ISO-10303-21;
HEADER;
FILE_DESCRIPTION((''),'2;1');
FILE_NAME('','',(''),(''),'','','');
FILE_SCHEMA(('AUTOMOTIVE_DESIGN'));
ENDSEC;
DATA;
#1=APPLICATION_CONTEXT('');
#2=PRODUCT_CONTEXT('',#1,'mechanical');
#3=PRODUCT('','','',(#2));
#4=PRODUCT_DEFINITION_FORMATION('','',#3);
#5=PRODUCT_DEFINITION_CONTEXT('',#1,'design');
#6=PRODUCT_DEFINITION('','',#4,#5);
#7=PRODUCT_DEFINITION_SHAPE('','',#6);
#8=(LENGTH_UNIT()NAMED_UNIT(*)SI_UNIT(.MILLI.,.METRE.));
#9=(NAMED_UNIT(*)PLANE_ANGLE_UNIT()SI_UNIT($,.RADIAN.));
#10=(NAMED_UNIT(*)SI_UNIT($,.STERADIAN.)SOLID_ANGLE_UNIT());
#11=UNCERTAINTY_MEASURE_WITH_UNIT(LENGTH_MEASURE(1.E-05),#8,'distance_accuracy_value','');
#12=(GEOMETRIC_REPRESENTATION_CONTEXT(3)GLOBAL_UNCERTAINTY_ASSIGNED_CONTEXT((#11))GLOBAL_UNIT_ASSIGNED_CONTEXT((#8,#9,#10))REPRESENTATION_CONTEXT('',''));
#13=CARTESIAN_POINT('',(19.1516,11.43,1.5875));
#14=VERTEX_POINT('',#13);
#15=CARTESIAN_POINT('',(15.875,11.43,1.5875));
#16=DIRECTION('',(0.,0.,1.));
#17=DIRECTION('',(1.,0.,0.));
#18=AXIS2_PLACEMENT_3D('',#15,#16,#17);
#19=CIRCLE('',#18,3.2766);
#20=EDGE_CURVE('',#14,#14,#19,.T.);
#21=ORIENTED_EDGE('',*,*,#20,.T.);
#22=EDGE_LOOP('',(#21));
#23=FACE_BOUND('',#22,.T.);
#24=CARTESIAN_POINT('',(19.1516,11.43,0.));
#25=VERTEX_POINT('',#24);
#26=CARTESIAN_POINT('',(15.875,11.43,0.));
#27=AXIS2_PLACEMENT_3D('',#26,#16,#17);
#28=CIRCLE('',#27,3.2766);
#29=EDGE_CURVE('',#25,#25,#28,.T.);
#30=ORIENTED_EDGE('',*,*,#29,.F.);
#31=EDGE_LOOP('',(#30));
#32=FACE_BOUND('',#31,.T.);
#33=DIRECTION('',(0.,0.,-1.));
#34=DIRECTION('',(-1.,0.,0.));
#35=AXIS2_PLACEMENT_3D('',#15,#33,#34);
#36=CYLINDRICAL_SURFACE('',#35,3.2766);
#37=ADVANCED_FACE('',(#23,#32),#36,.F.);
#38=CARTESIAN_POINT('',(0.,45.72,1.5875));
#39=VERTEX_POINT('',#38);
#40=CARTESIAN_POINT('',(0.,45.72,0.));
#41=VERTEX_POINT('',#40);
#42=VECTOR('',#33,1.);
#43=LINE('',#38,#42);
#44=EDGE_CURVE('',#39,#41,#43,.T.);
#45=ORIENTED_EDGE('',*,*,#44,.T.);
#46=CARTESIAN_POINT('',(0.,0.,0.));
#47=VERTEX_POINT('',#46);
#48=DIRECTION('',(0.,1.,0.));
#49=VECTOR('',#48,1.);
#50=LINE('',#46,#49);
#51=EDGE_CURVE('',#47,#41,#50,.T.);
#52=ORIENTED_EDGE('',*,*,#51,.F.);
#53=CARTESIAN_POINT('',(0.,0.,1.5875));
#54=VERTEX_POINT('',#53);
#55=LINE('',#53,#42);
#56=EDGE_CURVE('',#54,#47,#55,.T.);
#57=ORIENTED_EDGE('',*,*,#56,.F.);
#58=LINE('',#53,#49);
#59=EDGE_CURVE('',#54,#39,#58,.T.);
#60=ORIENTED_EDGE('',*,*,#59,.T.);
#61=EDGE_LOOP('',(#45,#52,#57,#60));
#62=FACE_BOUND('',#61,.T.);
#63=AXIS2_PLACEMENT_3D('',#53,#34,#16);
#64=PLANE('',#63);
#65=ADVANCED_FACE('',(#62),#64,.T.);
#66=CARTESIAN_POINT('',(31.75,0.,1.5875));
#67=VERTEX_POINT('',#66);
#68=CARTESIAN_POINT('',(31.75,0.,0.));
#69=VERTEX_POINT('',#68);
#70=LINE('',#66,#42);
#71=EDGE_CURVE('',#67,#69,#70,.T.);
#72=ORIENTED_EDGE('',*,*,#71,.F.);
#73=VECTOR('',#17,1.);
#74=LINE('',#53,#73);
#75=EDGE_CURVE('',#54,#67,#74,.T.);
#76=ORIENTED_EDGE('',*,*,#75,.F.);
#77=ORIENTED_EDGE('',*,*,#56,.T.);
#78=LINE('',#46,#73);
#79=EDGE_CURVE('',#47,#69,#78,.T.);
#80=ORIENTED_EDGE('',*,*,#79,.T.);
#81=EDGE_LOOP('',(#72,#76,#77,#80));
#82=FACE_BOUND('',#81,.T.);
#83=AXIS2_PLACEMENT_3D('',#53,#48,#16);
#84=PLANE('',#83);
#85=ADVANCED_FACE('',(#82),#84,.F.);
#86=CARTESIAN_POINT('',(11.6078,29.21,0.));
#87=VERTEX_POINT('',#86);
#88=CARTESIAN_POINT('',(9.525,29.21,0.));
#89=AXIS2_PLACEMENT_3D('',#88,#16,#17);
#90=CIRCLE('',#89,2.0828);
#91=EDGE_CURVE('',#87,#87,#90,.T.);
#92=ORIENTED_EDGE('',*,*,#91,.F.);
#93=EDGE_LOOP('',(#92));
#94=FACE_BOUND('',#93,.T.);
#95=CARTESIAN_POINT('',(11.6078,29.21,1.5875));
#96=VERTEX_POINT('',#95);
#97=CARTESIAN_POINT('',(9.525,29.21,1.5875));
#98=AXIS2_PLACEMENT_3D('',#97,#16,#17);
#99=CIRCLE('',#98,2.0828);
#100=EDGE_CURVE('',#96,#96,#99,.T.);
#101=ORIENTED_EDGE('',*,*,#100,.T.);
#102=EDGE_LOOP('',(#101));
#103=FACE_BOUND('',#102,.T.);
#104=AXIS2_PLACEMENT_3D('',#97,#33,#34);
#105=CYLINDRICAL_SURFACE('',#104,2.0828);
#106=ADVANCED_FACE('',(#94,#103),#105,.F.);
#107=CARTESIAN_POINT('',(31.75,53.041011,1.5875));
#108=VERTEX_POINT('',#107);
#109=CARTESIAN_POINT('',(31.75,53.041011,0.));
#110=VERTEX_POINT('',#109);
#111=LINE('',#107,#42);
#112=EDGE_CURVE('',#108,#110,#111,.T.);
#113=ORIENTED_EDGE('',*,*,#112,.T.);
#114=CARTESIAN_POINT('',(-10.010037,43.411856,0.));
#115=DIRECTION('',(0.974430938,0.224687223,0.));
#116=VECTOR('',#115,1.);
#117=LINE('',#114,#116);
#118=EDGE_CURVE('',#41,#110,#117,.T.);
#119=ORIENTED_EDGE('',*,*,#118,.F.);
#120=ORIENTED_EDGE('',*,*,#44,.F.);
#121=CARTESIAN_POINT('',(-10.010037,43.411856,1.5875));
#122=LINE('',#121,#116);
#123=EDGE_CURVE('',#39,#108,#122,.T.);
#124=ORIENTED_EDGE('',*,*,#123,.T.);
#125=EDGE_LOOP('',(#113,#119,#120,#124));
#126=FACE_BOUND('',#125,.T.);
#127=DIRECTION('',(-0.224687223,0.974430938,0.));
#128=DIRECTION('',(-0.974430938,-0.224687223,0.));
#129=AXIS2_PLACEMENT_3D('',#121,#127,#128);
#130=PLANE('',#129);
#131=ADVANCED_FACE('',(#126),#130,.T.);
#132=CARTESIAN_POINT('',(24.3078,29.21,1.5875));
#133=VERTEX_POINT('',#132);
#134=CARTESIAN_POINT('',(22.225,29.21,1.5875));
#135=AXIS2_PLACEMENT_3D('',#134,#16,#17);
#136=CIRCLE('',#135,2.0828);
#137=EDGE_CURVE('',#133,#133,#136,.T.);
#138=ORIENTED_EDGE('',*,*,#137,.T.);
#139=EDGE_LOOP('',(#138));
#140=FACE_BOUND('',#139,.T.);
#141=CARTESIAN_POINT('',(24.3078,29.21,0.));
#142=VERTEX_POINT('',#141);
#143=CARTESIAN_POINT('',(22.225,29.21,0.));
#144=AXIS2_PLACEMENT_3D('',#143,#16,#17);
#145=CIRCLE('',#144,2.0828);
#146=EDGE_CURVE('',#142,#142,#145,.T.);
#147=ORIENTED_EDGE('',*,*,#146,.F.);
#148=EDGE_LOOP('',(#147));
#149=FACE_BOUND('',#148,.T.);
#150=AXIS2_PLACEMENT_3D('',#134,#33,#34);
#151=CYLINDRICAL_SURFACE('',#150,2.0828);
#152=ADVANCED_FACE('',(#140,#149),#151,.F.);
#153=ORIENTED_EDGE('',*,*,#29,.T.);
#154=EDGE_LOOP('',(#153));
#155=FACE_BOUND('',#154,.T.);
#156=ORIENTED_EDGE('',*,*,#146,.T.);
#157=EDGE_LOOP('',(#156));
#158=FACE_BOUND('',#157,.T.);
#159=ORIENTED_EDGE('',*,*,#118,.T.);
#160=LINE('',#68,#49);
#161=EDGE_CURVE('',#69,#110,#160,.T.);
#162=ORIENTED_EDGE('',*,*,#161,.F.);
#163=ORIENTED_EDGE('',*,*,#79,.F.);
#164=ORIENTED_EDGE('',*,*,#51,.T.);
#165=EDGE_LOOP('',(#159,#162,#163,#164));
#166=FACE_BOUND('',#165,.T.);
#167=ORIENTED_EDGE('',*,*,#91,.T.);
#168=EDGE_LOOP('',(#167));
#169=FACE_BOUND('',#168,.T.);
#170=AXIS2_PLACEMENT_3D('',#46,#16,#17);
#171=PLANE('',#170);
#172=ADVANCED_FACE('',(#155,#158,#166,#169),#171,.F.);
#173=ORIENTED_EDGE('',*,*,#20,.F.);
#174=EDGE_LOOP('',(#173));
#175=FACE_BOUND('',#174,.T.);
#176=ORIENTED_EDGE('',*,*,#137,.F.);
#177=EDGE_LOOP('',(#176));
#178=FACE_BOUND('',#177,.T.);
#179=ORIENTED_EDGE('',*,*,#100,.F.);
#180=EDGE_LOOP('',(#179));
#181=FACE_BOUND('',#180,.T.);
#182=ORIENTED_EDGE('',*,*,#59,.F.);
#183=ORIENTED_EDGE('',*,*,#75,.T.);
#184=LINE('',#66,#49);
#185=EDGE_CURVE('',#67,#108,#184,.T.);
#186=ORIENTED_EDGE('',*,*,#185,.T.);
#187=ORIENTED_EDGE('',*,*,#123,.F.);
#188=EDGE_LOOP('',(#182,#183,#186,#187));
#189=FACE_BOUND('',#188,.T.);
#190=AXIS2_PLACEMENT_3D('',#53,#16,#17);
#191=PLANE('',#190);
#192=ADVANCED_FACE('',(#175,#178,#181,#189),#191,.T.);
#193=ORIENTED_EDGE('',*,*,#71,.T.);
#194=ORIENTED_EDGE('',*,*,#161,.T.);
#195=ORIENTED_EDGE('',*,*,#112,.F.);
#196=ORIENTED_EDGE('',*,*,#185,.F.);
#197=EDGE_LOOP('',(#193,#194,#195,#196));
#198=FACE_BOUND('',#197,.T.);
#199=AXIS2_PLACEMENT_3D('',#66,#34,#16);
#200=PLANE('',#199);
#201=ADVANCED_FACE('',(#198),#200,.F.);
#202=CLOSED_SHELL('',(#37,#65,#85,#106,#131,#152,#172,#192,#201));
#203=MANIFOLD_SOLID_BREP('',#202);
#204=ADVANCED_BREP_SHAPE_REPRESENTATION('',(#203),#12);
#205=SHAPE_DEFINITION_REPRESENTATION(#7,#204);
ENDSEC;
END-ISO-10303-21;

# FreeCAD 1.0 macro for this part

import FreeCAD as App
import Part
import Sketcher
from FreeCAD import Vector
Q = App.Units.Quantity

doc = App.newDocument("Part")
body = doc.addObject("PartDesign::Body", "Body")

sketch1 = body.newObject("Sketcher::SketchObject", "Sketch")
sketch1.AttachmentSupport = (doc.getObject("XY_Plane"), [""])
sketch1.MapMode = "FlatFace"
sketch1.addGeometry([
    Part.LineSegment(Vector(0, 0, 0), Vector(31.8, 0, 0)),
    Part.LineSegment(Vector(31.8, 0, 0), Vector(31.8, 53, 0)),
    Part.LineSegment(Vector(31.8, 53, 0), Vector(0, 45.7, 0)),
    Part.LineSegment(Vector(0, 45.7, 0), Vector(0, 0, 0)),
    Part.Circle(Vector(15.9, 11.4, 0), Vector(0, 0, 1), 3.3),
    Part.Circle(Vector(22.2, 29.2, 0), Vector(0, 0, 1), 2.1),
    Part.Circle(Vector(9.5, 29.2, 0), Vector(0, 0, 1), 2.1),
], False)
sketch1.addConstraint([
    Sketcher.Constraint("Coincident", 0, 2, 1, 1),
    Sketcher.Constraint("Coincident", 1, 2, 2, 1),
    Sketcher.Constraint("Coincident", 2, 2, 3, 1),
    Sketcher.Constraint("Coincident", 3, 2, 0, 1),
    Sketcher.Constraint("Horizontal", 0),
    Sketcher.Constraint("Vertical", 1),
    Sketcher.Constraint("Vertical", 3),
    Sketcher.Constraint("Coincident", 3, 2, -1, 1),
    Sketcher.Constraint("Equal", 5, 6),
    Sketcher.Constraint("Horizontal", 5, 3, 6, 3),
    Sketcher.Constraint("Diameter", 4, Q("0.258 in")),
    Sketcher.Constraint("Diameter", 5, Q("0.164 in")),
    Sketcher.Constraint("DistanceY", 3, 2, 3, 1, Q("1.8 in")),
    Sketcher.Constraint("DistanceX", 0, 1, 0, 2, Q("1.25 in")),
    Sketcher.Constraint("DistanceY", 4, 3, 5, 3, Q("0.7 in")),
    Sketcher.Constraint("DistanceX", 6, 3, 5, 3, Q("0.5 in")),
    Sketcher.Constraint("DistanceY", -1, 1, 4, 3, Q("0.45 in")),
    Sketcher.Constraint("DistanceX", 4, 3, 5, 3, Q("0.25 in")),
    Sketcher.Constraint("DistanceX", -1, 1, 4, 3, Q("0.625 in")),
    Sketcher.Constraint("Distance", 2, Q("1.2828 in")),
])
pad1 = body.newObject("PartDesign::Pad", "Pad")
pad1.Profile = sketch1
pad1.Length = Q("0.0625 in")

doc.recompute()
